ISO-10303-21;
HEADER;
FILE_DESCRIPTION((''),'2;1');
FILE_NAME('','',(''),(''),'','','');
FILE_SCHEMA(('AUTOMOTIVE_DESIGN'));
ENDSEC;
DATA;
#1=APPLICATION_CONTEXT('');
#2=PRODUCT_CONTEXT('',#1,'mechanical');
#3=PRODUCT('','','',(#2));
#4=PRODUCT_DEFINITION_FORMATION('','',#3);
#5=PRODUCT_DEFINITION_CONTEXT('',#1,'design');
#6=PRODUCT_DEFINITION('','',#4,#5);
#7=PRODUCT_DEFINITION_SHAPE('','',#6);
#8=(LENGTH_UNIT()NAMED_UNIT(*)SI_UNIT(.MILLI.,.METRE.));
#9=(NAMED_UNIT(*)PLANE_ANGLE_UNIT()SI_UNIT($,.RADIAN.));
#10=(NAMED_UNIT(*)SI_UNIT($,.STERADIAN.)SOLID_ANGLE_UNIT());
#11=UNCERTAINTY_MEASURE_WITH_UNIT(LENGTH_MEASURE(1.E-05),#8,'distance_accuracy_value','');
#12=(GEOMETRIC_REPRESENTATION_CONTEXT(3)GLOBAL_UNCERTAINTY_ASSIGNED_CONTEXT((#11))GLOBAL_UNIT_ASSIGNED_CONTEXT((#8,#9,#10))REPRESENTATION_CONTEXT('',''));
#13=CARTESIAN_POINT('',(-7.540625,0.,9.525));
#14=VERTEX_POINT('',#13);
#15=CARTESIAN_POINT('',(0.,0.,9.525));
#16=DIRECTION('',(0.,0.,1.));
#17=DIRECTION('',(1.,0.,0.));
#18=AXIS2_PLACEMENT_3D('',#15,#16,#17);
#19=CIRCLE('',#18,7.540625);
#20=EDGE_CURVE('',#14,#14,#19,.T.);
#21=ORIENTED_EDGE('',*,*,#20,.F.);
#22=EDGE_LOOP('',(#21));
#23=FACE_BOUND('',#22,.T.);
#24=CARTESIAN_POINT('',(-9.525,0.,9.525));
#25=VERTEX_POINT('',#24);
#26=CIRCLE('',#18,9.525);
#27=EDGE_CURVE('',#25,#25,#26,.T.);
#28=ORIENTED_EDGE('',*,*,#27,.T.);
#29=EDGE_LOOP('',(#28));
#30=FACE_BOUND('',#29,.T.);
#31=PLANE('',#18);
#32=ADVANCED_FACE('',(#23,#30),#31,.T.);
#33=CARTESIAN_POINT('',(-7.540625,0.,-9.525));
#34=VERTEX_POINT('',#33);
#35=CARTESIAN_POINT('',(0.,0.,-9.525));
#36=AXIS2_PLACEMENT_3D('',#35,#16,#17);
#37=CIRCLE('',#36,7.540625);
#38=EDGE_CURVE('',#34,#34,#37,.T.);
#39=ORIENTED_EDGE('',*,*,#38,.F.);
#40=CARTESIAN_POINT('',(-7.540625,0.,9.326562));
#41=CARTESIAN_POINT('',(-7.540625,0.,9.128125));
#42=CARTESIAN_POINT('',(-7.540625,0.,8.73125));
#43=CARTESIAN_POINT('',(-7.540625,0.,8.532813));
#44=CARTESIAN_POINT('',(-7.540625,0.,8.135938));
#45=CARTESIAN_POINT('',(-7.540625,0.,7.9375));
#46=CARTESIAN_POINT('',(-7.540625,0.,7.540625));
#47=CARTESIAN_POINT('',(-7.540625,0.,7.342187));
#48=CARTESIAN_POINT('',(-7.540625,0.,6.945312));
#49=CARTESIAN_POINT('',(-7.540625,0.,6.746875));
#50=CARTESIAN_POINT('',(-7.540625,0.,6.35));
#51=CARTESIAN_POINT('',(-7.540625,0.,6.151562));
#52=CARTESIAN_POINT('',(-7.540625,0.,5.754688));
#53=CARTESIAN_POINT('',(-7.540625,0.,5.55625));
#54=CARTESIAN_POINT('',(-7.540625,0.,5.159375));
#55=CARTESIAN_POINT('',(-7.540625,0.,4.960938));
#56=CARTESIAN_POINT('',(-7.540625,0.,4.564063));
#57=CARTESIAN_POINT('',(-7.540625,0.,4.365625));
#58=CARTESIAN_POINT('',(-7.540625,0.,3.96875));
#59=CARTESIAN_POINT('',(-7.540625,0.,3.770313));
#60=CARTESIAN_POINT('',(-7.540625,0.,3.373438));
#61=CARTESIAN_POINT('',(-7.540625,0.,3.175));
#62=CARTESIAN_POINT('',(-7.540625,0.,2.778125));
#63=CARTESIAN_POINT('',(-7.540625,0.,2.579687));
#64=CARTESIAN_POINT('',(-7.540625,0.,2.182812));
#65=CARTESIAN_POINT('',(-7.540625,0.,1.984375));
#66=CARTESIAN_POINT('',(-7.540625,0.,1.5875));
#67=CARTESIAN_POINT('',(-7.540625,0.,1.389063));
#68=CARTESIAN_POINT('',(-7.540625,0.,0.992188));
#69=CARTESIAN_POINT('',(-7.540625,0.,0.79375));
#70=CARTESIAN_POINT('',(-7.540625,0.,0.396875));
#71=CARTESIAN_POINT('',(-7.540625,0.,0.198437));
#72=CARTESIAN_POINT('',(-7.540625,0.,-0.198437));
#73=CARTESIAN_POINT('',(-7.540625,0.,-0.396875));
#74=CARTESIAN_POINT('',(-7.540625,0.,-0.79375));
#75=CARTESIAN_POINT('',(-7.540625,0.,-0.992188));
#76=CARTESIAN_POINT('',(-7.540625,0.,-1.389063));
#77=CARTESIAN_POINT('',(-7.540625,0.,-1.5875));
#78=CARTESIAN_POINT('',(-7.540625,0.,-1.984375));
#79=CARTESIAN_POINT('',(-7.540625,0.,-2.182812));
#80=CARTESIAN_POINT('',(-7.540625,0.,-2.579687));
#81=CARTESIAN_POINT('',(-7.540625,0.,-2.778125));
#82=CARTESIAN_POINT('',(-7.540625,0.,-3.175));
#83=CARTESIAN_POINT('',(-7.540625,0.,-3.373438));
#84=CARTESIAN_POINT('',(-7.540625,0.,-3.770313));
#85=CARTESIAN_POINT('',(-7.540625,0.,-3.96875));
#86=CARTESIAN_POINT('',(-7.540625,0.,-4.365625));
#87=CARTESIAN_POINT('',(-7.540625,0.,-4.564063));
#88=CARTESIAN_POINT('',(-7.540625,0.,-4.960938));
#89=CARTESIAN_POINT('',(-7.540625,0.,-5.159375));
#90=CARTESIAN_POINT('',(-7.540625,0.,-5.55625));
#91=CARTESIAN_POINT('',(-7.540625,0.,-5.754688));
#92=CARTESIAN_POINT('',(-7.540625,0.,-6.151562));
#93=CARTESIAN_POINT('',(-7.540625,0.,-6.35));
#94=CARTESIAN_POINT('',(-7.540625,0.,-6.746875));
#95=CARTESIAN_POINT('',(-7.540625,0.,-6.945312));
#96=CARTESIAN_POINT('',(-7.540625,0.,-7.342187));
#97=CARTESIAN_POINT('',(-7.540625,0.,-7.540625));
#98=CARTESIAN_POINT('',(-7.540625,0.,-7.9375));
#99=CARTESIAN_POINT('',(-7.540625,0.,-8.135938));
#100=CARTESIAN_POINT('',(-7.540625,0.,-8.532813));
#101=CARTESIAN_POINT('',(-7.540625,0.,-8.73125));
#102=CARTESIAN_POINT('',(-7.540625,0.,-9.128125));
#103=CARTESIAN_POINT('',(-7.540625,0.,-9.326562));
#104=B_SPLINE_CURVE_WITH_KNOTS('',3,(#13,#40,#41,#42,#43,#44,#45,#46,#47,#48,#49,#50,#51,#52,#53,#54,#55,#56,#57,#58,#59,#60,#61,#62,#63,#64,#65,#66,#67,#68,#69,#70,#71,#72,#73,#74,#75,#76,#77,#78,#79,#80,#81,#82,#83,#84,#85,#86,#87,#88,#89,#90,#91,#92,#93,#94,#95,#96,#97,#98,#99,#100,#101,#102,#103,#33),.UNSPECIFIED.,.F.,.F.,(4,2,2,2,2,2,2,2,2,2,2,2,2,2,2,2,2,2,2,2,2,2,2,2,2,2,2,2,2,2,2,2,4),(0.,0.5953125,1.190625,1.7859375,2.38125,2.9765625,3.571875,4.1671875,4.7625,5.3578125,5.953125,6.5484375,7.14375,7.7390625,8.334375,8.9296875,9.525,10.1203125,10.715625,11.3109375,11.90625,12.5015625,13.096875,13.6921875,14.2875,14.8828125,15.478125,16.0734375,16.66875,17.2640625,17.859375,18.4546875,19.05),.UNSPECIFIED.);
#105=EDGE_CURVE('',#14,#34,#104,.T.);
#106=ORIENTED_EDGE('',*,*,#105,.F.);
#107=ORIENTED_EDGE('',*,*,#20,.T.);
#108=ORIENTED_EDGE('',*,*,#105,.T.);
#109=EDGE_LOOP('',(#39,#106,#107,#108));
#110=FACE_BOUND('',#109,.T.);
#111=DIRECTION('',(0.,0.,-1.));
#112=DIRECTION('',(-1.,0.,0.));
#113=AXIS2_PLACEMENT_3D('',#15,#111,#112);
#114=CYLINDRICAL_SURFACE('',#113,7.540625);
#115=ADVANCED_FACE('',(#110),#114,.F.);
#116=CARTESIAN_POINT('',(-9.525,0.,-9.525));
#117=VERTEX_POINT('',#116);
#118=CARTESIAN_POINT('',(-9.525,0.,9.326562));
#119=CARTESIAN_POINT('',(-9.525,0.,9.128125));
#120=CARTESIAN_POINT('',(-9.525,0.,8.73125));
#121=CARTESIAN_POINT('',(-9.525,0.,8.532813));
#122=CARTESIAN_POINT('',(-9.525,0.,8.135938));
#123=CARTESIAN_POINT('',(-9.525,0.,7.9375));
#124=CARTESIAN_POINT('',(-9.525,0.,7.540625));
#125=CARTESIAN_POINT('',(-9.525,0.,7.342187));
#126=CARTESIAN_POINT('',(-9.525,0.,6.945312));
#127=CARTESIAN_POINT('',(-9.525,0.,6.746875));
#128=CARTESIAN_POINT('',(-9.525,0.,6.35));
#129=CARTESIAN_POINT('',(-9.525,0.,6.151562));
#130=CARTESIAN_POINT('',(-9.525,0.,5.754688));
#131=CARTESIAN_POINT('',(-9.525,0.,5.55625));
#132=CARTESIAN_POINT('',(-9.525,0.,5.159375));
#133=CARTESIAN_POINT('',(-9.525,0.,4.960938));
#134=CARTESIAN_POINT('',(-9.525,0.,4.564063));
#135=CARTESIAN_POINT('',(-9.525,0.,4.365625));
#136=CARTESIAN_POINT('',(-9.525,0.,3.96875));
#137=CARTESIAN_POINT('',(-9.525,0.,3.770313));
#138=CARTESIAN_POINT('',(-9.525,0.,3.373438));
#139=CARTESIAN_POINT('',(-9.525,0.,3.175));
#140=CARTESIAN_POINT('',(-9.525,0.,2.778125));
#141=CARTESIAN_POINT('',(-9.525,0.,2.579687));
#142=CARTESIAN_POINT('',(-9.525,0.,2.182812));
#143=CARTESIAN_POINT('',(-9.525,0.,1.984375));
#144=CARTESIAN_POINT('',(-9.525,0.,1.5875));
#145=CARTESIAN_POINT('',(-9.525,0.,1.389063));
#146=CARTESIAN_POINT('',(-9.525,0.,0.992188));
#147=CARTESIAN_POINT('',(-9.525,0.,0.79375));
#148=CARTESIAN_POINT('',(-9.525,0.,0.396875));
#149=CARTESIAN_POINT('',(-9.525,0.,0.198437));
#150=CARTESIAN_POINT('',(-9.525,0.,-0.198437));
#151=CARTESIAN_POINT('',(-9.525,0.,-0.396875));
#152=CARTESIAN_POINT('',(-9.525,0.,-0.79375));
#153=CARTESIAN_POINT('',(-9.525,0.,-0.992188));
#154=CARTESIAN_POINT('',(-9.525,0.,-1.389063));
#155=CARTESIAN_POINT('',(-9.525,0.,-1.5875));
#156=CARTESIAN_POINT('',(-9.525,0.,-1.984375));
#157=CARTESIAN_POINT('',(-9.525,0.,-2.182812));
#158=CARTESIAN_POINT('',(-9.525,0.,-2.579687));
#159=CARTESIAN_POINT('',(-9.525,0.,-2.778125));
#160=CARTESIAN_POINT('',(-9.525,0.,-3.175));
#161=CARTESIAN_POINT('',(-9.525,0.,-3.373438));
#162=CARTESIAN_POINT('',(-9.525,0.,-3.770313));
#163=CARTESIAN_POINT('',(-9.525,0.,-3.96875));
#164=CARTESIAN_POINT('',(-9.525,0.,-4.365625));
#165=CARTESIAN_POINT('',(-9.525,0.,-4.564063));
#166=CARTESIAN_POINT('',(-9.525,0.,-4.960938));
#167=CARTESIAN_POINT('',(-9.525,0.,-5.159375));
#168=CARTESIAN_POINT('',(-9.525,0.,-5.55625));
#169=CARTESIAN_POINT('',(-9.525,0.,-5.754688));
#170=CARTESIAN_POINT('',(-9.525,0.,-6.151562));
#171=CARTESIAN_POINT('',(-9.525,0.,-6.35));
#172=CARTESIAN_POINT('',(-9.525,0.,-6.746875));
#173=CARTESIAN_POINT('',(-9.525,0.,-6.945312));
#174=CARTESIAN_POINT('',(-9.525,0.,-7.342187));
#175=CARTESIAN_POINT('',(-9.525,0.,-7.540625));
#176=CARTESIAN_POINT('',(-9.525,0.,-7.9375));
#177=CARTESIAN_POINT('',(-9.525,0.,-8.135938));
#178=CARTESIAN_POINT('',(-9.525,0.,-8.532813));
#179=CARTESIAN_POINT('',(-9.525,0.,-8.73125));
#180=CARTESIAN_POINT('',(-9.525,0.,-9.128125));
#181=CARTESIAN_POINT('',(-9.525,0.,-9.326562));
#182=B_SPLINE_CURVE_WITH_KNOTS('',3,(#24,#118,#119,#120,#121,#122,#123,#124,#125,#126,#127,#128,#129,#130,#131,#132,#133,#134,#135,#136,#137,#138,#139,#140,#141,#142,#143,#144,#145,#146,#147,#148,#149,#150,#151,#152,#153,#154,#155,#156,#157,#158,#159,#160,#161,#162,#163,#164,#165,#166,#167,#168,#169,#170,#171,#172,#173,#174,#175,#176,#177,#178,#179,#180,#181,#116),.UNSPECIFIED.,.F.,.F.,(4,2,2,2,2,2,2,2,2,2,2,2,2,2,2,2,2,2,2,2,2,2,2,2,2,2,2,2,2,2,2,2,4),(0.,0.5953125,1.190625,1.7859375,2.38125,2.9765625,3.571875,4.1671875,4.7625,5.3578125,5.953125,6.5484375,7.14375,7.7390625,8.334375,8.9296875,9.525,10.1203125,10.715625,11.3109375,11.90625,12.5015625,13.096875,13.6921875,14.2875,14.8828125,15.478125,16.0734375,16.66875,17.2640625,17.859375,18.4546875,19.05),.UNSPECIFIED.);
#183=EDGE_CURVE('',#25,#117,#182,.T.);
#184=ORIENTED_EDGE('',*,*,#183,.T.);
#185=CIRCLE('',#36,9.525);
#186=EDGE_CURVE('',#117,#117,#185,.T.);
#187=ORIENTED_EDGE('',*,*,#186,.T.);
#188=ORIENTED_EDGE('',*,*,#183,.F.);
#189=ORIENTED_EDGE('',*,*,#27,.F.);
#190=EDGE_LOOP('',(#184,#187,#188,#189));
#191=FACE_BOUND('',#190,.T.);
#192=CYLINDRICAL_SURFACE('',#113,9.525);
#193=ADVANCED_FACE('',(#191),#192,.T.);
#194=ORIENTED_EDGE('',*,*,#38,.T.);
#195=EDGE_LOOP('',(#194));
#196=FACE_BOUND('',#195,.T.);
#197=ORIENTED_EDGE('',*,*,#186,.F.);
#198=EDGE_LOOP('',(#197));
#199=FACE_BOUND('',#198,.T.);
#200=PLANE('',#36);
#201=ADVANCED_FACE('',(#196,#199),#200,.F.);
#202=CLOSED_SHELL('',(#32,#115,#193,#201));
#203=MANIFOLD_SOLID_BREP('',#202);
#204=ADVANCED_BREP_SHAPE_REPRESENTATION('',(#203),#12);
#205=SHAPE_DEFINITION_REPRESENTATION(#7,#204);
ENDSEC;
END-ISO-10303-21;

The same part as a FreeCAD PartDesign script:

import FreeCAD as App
import Part
import Sketcher

V = App.Vector
Q = App.Units.Quantity

doc = App.newDocument("Part")
body = doc.addObject("PartDesign::Body", "Body")

sketch1 = doc.addObject("Sketcher::SketchObject", "Sketch")
body.addObject(sketch1)
sketch1.AttachmentSupport = (doc.XY_Plane, [""])
sketch1.MapMode = "FlatFace"
sketch1.addGeometry([
    Part.Circle(V(0, 0, 0), V(0, 0, 1), 10),
    Part.Circle(V(0, 0, 0), V(0, 0, 1), 8),
], False)
sketch1.addConstraint([
    Sketcher.Constraint("Coincident", 0, 3, -1, 1),
    Sketcher.Constraint("Coincident", 1, 3, -1, 1),
    Sketcher.Constraint("Diameter", 0, Q("0.75 in")),
    Sketcher.Constraint("Diameter", 1, Q("0.59375 in")),
])
pad1 = doc.addObject("PartDesign::Pad", "Pad")
body.addObject(pad1)
pad1.Profile = sketch1
pad1.Length = Q("0.75 in")
pad1.Midplane = True

doc.recompute()
